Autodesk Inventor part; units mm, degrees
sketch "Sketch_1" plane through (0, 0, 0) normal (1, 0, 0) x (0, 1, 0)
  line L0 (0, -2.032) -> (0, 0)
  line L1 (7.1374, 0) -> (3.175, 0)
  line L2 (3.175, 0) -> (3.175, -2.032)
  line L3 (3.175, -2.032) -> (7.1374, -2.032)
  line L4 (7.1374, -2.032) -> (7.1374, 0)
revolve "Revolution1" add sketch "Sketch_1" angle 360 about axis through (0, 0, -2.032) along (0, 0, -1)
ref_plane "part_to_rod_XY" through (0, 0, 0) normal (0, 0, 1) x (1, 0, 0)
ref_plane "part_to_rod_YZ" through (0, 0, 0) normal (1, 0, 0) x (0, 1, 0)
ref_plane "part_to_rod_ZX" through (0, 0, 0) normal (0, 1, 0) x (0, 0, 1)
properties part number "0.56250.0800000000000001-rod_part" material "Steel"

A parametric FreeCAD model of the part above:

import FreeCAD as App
import Part
import Sketcher
Q = App.Units.Quantity

doc = App.newDocument("Part")
body = doc.addObject("PartDesign::Body", "Body")

# Sketch on YZ plane
sketch1 = body.newObject("Sketcher::SketchObject", "Sketch")
sketch1.AttachmentSupport = (doc.getObject("YZ_Plane"), [""])
sketch1.MapMode = "FlatFace"
sketch1.addGeometry(Part.LineSegment(App.Vector(7.1, -2, 0), App.Vector(7.1, 0, 0)), False)
sketch1.addGeometry(Part.LineSegment(App.Vector(7.1, 0, 0), App.Vector(3.2, 0, 0)), False)
sketch1.addGeometry(Part.LineSegment(App.Vector(3.2, 0, 0), App.Vector(3.2, -2, 0)), False)
sketch1.addGeometry(Part.LineSegment(App.Vector(3.2, -2, 0), App.Vector(7.1, -2, 0)), False)
sketch1.addConstraint(Sketcher.Constraint("Coincident", 0, 2, 1, 1))
sketch1.addConstraint(Sketcher.Constraint("Coincident", 1, 2, 2, 1))
sketch1.addConstraint(Sketcher.Constraint("Coincident", 2, 2, 3, 1))
sketch1.addConstraint(Sketcher.Constraint("Coincident", 3, 2, 0, 1))
sketch1.addConstraint(Sketcher.Constraint("Vertical", 0))
sketch1.addConstraint(Sketcher.Constraint("Horizontal", 1))
sketch1.addConstraint(Sketcher.Constraint("Vertical", 2))
sketch1.addConstraint(Sketcher.Constraint("Horizontal", 3))
sketch1.addConstraint(Sketcher.Constraint("PointOnObject", 0, 2, -1))
sketch1.addConstraint(Sketcher.Constraint("DistanceY", 0, 1, 0, 2, Q("0.08 in")))
sketch1.addConstraint(Sketcher.Constraint("DistanceX", 1, 2, 1, 1, Q("0.156 in")))
sketch1.addConstraint(Sketcher.Constraint("DistanceX", -1, 1, 0, 2, Q("0.281 in")))
revolution = body.newObject("PartDesign::Revolution", "Revolution")
revolution.Profile = sketch1
revolution.ReferenceAxis = (sketch1, ["V_Axis"])
revolution.Angle = 360

doc.recompute()
